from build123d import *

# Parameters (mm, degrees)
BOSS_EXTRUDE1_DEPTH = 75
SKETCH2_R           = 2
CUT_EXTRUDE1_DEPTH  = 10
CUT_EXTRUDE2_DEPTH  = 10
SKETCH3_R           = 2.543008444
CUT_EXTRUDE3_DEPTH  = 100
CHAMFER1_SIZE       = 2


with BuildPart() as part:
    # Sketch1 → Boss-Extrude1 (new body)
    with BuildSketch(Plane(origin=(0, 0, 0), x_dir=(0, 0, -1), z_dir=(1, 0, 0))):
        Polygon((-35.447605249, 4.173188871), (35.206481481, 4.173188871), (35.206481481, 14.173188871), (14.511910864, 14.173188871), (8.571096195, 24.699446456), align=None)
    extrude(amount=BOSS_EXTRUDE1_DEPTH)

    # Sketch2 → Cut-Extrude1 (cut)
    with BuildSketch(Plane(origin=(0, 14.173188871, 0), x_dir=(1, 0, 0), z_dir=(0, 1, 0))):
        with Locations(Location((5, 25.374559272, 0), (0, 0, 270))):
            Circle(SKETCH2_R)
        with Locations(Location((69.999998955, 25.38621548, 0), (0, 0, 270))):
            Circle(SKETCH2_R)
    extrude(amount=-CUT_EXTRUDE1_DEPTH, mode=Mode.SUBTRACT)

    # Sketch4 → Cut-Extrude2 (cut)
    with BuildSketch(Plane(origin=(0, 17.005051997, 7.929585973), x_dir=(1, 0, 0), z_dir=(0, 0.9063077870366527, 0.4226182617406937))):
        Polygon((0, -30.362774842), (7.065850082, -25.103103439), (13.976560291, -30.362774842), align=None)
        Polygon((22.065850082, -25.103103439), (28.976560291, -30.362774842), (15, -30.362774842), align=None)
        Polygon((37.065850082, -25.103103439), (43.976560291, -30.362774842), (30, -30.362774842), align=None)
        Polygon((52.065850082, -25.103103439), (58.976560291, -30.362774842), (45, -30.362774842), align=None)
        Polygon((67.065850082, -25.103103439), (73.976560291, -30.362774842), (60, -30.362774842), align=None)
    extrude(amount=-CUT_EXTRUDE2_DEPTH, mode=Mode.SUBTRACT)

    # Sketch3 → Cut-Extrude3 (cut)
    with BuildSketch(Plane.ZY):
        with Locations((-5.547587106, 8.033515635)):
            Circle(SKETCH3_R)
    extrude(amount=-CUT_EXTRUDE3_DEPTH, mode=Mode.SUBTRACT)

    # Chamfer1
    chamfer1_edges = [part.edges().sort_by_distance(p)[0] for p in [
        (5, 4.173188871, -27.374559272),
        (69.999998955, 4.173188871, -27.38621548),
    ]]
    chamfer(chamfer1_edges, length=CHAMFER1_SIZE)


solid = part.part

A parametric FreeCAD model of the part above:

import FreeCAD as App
import Part
import Sketcher
Q = App.Units.Quantity


def edges_at(feature, points):
    """Names of the edges that pass closest to the given points."""
    edges = feature.Shape.Edges
    near = lambda p: min(range(len(edges)), key=lambda i: edges[i].distToShape(Part.Vertex(*p))[0])
    return sorted({f"Edge{near(p) + 1}" for p in points})


def add_polygon(sketch, points):
    """Adds a closed chain of lines whose ends are joined by coincident constraints."""
    first, n = sketch.GeometryCount, len(points)
    for a, b in zip(points, points[1:] + points[:1]):
        sketch.addGeometry(Part.LineSegment(App.Vector(*a, 0), App.Vector(*b, 0)), False)
    for i in range(n):
        sketch.addConstraint(Sketcher.Constraint("Coincident", first + i, 2, first + (i + 1) % n, 1))

doc = App.newDocument("Part")
body = doc.addObject("PartDesign::Body", "Body")

# Sketch on YZ plane
sketch1 = body.newObject("Sketcher::SketchObject", "Sketch")
sketch1.AttachmentSupport = (doc.getObject("YZ_Plane"), [""])
sketch1.MapMode = "FlatFace"
add_polygon(sketch1, [(4, 35), (4, -35), (14, -35), (14, -15), (25, -9)])  # lines 0-4
sketch1.addConstraint([
    Sketcher.Constraint("Vertical", 0),
    Sketcher.Constraint("Horizontal", 1),
    Sketcher.Constraint("Vertical", 2),
    Sketcher.Constraint("DistanceX", 1, 1, 1, 2, Q("10 mm")),
    Sketcher.Constraint("Angle", 4, Q("115 deg")),
    Sketcher.Constraint("DistanceY", 2, 1, 2, 2, Q("20.694571 mm")),
    Sketcher.Constraint("DistanceY", 3, 2, 4, 2, Q("44.018701 mm")),
    Sketcher.Constraint("DistanceY", 0, 2, 0, 1, Q("70.654087 mm")),
    Sketcher.Constraint("DistanceX", -1, 1, 0, 2, Q("4.173189 mm")),
    Sketcher.Constraint("DistanceY", 0, 2, -1, 1, Q("35.206481 mm")),
])
pad1 = body.newObject("PartDesign::Pad", "Pad")
pad1.Profile = sketch1
pad1.Length = 75

# Sketch on XZ plane
sketch2 = body.newObject("Sketcher::SketchObject", "Sketch001")
sketch2.AttachmentSupport = (doc.getObject("XZ_Plane"), [""])
sketch2.MapMode = "FlatFace"
sketch2.AttachmentOffset = App.Placement(App.Vector(0, 0, -14.173189), App.Rotation())
sketch2.addGeometry([
    Part.Circle(App.Vector(5, -25.4, 0), App.Vector(0, 0, 1), 2),
    Part.Circle(App.Vector(70, -25.4, 0), App.Vector(0, 0, 1), 2),
], False)
sketch2.addConstraint([
    Sketcher.Constraint("Equal", 0, 1),
    Sketcher.Constraint("Diameter", 0, Q("4 mm")),
    Sketcher.Constraint("DistanceX", -1, 1, 0, 3, Q("5 mm")),
    Sketcher.Constraint("DistanceX", -1, 1, 1, 3, Q("69.999999 mm")),
    Sketcher.Constraint("DistanceY", 0, 3, -1, 1, Q("25.374559 mm")),
    Sketcher.Constraint("DistanceY", 1, 3, -1, 1, Q("25.386215 mm")),
])
pocket1 = body.newObject("PartDesign::Pocket", "Pocket")
pocket1.Profile = sketch2
pocket1.Length = 10
pocket1.Reversed = True

# Sketch on an angled plane
sketch3 = body.newObject("Sketcher::SketchObject", "Sketch002")
sketch3.Placement = App.Placement(App.Vector(0, 17.005052, 7.929586), App.Rotation(App.Vector(1, 0, 0), App.Vector(0, 0.422618262, -0.906307787), App.Vector(0, 0.906307787, 0.422618262), "ZXY"))
add_polygon(sketch3, [(7, -25), (0, -30), (14, -30)])  # lines 0-2
add_polygon(sketch3, [(29, -30), (22, -25), (15, -30)])  # lines 3-5
add_polygon(sketch3, [(44, -30), (37, -25), (30, -30)])  # lines 6-8
add_polygon(sketch3, [(59, -30), (52, -25), (45, -30)])  # lines 9-11
add_polygon(sketch3, [(74, -30), (67, -25), (60, -30)])  # lines 12-14
sketch3.addConstraint([
    Sketcher.Constraint("Horizontal", 1),
    Sketcher.Constraint("Horizontal", 5),
    Sketcher.Constraint("Horizontal", 8),
    Sketcher.Constraint("Horizontal", 11),
    Sketcher.Constraint("Horizontal", 14),
    Sketcher.Constraint("PointOnObject", 0, 2, -2),
    Sketcher.Constraint("Parallel", 2, 3),
    Sketcher.Constraint("Parallel", 0, 4),
    Sketcher.Constraint("Parallel", 3, 6),
    Sketcher.Constraint("Parallel", 4, 7),
    Sketcher.Constraint("Parallel", 6, 9),
    Sketcher.Constraint("Parallel", 7, 10),
    Sketcher.Constraint("Parallel", 9, 12),
    Sketcher.Constraint("Parallel", 10, 13),
    Sketcher.Constraint("Horizontal", 2, 2, 3, 2),
    Sketcher.Constraint("Horizontal", 1, 2, 4, 2),
    Sketcher.Constraint("Horizontal", 3, 2, 6, 2),
    Sketcher.Constraint("Horizontal", 5, 2, 7, 2),
    Sketcher.Constraint("Horizontal", 6, 2, 9, 2),
    Sketcher.Constraint("Horizontal", 8, 2, 10, 2),
    Sketcher.Constraint("Horizontal", 9, 2, 12, 2),
    Sketcher.Constraint("Horizontal", 11, 2, 13, 2),
    Sketcher.Constraint("DistanceX", -1, 1, 4, 2, Q("15 mm")),
    Sketcher.Constraint("DistanceX", -1, 1, 7, 2, Q("30 mm")),
    Sketcher.Constraint("DistanceX", -1, 1, 10, 2, Q("45 mm")),
    Sketcher.Constraint("DistanceX", -1, 1, 13, 2, Q("60 mm")),
    Sketcher.Constraint("DistanceX", 1, 1, 1, 2, Q("13.97656 mm")),
    Sketcher.Constraint("Distance", 0, Q("8.80854 mm")),
    Sketcher.Constraint("DistanceX", -1, 1, 2, 2, Q("7.06585 mm")),
    Sketcher.Constraint("DistanceY", 0, 2, -1, 1, Q("30.362775 mm")),
])
pocket2 = body.newObject("PartDesign::Pocket", "Pocket001")
pocket2.Profile = sketch3
pocket2.Length = 10

# Sketch on YZ plane
sketch4 = body.newObject("Sketcher::SketchObject", "Sketch003")
sketch4.AttachmentSupport = (doc.getObject("YZ_Plane"), [""])
sketch4.MapMode = "FlatFace"
sketch4.addGeometry(Part.Circle(App.Vector(8, -5.5, 0), App.Vector(0, 0, 1), 2.5), False)
sketch4.addConstraint([
    Sketcher.Constraint("Diameter", 0, Q("5.086017 mm")),
    Sketcher.Constraint("DistanceX", -1, 1, 0, 3, Q("8.033516 mm")),
    Sketcher.Constraint("DistanceY", 0, 3, -1, 1, Q("5.547587 mm")),
])
pocket3 = body.newObject("PartDesign::Pocket", "Pocket002")
pocket3.Profile = sketch4
pocket3.Length = 100
pocket3.Reversed = True
doc.recompute()

chamfer = body.newObject("PartDesign::Chamfer", "Chamfer")
chamfer.Base = (pocket3, edges_at(pocket3, [(5, 4.173, -27.375), (70, 4.173, -27.386)]))
chamfer.Size = 2

doc.recompute()
